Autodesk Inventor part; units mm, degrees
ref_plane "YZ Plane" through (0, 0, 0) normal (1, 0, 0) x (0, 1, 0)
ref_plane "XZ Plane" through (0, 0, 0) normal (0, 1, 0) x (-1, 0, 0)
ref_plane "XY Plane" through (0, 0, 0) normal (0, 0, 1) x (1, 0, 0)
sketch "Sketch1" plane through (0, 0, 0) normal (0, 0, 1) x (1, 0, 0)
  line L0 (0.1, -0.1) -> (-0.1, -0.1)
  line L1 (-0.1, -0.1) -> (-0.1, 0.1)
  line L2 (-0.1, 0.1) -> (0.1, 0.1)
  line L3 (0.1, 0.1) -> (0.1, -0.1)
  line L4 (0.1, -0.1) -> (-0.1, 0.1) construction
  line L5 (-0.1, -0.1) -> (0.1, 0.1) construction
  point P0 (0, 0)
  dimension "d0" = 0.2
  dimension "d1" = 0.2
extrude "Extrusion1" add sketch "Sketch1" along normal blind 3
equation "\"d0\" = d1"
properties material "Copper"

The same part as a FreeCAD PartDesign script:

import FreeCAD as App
import Part
import Sketcher
from FreeCAD import Vector


def add_polygon(sketch, points):
    """Adds a closed chain of lines whose ends are joined by coincident constraints."""
    first, n = sketch.GeometryCount, len(points)
    for a, b in zip(points, points[1:] + points[:1]):
        sketch.addGeometry(Part.LineSegment(App.Vector(*a, 0), App.Vector(*b, 0)), False)
    for i in range(n):
        sketch.addConstraint(Sketcher.Constraint("Coincident", first + i, 2, first + (i + 1) % n, 1))

doc = App.newDocument("Part")
params = doc.addObject("Spreadsheet::Sheet", "Params")
for row, (alias, value) in enumerate([
    ("sketch1_width", "0.2 mm"),
    ("pad1_length", "3 mm"),
], start=1):
    params.set(f"A{row}", alias)
    params.set(f"B{row}", "=" + value)
    params.setAlias(f"B{row}", alias)

body = doc.addObject("PartDesign::Body", "Body")

# Sketch on XY plane
sketch1 = body.newObject("Sketcher::SketchObject", "Sketch")
sketch1.AttachmentSupport = (doc.getObject("XY_Plane"), [""])
sketch1.MapMode = "FlatFace"
add_polygon(sketch1, [(-0.1, -0.1), (0.1, -0.1), (0.1, 0.1), (-0.1, 0.1)])  # lines 0-3
sketch1.addConstraint([
    Sketcher.Constraint("Horizontal", 0),
    Sketcher.Constraint("Vertical", 1),
    Sketcher.Constraint("Horizontal", 2),
    Sketcher.Constraint("Vertical", 3),
    Sketcher.Constraint("Symmetric", 0, 2, 2, 2, -1, 1),
    Sketcher.Constraint("Equal", 2, 1),
    Sketcher.Constraint("DistanceX", 0, 1, 0, 2, 0.2),
])
sketch1.setExpression("Constraints[10]", "Params.sketch1_width")
pad1 = body.newObject("PartDesign::Pad", "Pad")
pad1.Profile = sketch1
pad1.setExpression("Length", "Params.pad1_length")

doc.recompute()
